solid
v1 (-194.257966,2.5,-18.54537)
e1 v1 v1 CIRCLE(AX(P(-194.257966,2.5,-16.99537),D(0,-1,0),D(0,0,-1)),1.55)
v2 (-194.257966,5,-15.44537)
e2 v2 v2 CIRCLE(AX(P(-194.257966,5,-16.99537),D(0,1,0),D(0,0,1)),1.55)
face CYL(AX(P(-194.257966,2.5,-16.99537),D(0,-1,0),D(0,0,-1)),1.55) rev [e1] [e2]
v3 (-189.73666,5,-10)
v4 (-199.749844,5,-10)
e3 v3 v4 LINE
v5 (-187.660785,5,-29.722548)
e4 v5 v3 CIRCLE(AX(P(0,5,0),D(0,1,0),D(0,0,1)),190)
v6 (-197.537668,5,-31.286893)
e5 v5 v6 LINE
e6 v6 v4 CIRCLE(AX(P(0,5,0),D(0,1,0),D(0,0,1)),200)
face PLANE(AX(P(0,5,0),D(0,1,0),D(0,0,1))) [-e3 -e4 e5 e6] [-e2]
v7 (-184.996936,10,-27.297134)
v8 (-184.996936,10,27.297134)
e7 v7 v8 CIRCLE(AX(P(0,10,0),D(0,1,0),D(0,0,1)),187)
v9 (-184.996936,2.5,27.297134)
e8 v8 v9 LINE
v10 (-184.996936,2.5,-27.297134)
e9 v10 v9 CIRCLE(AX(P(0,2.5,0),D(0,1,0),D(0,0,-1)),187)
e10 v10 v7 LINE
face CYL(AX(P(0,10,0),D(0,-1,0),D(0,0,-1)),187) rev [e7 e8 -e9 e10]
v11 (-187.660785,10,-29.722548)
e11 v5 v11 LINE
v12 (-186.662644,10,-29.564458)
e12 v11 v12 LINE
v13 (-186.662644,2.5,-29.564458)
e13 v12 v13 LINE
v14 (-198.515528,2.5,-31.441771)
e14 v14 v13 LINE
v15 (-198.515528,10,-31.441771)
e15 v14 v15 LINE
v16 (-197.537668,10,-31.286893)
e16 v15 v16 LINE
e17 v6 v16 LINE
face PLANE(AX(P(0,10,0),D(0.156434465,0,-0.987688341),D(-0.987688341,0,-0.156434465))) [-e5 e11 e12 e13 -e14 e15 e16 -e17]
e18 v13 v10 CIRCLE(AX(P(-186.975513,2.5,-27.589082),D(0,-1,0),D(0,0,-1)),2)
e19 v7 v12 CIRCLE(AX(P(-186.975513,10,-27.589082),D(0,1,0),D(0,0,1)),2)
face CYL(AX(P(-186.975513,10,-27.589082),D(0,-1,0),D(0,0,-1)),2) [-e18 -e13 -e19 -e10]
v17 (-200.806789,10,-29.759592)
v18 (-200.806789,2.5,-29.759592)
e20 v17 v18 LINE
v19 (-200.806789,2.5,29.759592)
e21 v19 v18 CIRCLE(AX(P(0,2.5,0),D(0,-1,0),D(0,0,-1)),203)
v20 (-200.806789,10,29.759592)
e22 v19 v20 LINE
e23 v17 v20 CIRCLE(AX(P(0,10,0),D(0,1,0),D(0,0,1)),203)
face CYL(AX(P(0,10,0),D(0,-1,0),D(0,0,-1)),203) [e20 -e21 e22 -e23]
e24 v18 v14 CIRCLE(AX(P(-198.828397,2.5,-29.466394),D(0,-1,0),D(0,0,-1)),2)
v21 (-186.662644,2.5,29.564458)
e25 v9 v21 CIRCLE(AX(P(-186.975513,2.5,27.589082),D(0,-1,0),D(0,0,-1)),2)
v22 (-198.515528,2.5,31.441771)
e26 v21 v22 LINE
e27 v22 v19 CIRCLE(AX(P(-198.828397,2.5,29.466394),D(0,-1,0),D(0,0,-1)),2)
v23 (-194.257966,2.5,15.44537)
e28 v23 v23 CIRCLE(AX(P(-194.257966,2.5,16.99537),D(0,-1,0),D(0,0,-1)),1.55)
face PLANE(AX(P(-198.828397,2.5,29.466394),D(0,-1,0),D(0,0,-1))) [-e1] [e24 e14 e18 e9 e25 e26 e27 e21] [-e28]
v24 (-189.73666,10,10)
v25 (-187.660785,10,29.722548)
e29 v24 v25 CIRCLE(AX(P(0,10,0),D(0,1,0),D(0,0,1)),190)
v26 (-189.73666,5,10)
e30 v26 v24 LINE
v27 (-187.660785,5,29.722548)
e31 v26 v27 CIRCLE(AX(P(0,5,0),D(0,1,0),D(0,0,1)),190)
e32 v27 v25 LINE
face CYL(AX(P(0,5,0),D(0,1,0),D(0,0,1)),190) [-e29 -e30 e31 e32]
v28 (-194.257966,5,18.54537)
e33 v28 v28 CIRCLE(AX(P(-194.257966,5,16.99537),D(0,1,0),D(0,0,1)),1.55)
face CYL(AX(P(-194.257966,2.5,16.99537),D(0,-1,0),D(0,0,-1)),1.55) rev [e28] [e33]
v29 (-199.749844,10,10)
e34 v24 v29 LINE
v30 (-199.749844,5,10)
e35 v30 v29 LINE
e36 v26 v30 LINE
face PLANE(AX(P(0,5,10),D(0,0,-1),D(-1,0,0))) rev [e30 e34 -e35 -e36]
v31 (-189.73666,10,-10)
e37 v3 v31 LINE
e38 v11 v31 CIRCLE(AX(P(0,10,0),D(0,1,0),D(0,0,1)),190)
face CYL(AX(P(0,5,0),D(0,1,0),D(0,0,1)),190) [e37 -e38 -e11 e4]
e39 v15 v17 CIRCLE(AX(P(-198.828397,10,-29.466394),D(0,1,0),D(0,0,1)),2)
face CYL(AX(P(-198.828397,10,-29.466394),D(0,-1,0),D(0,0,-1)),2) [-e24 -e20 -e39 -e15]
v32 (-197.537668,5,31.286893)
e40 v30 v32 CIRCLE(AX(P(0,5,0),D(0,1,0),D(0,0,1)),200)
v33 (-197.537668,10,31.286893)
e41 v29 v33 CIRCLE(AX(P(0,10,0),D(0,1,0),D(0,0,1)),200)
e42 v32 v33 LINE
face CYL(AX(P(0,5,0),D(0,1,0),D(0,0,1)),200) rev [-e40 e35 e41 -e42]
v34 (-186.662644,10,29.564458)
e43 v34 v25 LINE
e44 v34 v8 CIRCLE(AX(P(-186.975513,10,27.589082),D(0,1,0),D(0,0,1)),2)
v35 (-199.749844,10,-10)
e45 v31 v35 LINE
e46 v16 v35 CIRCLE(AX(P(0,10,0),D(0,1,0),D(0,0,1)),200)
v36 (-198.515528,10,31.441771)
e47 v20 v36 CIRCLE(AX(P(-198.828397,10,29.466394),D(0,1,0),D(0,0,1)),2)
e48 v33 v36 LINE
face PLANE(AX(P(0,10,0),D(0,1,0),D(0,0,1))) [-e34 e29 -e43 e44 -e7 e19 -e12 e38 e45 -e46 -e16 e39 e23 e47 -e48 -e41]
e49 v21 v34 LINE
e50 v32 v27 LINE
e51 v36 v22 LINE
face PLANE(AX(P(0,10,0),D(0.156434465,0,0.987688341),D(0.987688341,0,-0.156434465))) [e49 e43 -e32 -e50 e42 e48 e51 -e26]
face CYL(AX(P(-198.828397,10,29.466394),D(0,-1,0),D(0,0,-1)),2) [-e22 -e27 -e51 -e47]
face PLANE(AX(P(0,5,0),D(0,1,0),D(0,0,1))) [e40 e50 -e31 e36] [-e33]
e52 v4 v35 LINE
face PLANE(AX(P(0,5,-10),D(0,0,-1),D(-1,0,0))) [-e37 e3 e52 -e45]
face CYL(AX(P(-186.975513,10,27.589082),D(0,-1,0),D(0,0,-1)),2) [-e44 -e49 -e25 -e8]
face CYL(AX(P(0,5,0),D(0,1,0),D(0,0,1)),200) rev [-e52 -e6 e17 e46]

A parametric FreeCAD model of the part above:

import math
import FreeCAD as App
import Part
import Sketcher
Q = App.Units.Quantity


def edges_at(feature, points):
    """Names of the edges that pass closest to the given points."""
    edges = feature.Shape.Edges
    near = lambda p: min(range(len(edges)), key=lambda i: edges[i].distToShape(Part.Vertex(*p))[0])
    return sorted({f"Edge{near(p) + 1}" for p in points})

doc = App.newDocument("Part")
body = doc.addObject("PartDesign::Body", "Body")

# Sketch on XZ plane
sketch1 = doc.addObject("Sketcher::SketchObject", "Sketch")
body.addObject(sketch1)
sketch1.AttachmentSupport = (doc.XZ_Plane, [""])
sketch1.MapMode = "FlatFace"
sketch1.addGeometry([
    Part.LineSegment(App.Vector(-197.5, 31.3, 0), App.Vector(-187.7, 29.7, 0)),  # 0
    Part.LineSegment(App.Vector(-187.7, 29.7, 0), App.Vector(-184.7, 29.3, 0)),  # 1
    Part.ArcOfCircle(Part.Circle(App.Vector(0, 0, 0), App.Vector(0, 0, 1), 187), math.radians(171), math.radians(189)),  # 2
    Part.LineSegment(App.Vector(-184.7, -29.3, 0), App.Vector(-187.7, -29.7, 0)),  # 3
    Part.LineSegment(App.Vector(-187.7, -29.7, 0), App.Vector(-197.5, -31.3, 0)),  # 4
    Part.LineSegment(App.Vector(-197.5, -31.3, 0), App.Vector(-200.5, -31.8, 0)),  # 5
    Part.ArcOfCircle(Part.Circle(App.Vector(0, 0, 0), App.Vector(0, 0, 1), 203), math.radians(171), math.radians(189)),  # 6
    Part.LineSegment(App.Vector(-200.5, 31.8, 0), App.Vector(-197.5, 31.3, 0)),  # 7
], False)
sketch1.addConstraint([
    Sketcher.Constraint("Coincident", 0, 2, 1, 1),
    Sketcher.Constraint("Coincident", 1, 2, 2, 1),
    Sketcher.Constraint("Coincident", 2, 2, 3, 1),
    Sketcher.Constraint("Coincident", 3, 2, 4, 1),
    Sketcher.Constraint("Coincident", 4, 2, 5, 1),
    Sketcher.Constraint("Coincident", 5, 2, 6, 2),
    Sketcher.Constraint("Coincident", 6, 1, 7, 1),
    Sketcher.Constraint("Coincident", 7, 2, 0, 1),
    Sketcher.Constraint("Coincident", 2, 3, -1, 1),
    Sketcher.Constraint("Coincident", 6, 3, -1, 1),
    Sketcher.Constraint("Symmetric", 0, 2, 3, 2, -1),
    Sketcher.Constraint("Symmetric", 4, 2, 7, 2, -1),
    Sketcher.Constraint("Parallel", 0, 1),
    Sketcher.Constraint("Parallel", 3, 4),
    Sketcher.Constraint("Parallel", 4, 5),
    Sketcher.Constraint("Parallel", 1, 7),
    Sketcher.Constraint("Equal", 3, 5),
    Sketcher.Constraint("Radius", 2, 187.0),
    Sketcher.Constraint("Radius", 6, 203.0),
    Sketcher.Constraint("Angle", 0, Q("-9 deg")),
    Sketcher.Constraint("Distance", 0, 10.0),
    Sketcher.Constraint("DistanceY", -1, 1, 0, 2, 29.722548),
])
pad1 = doc.addObject("PartDesign::Pad", "Pad")
body.addObject(pad1)
pad1.Profile = sketch1
pad1.Length = 10
pad1.Reversed = True

# Sketch on XZ plane
sketch2 = doc.addObject("Sketcher::SketchObject", "Sketch001")
body.addObject(sketch2)
sketch2.AttachmentSupport = (doc.XZ_Plane, [""])
sketch2.MapMode = "FlatFace"
sketch2.AttachmentOffset = App.Placement(App.Vector(0, 0, -10), App.Rotation())
sketch2.addGeometry([
    Part.LineSegment(App.Vector(-200, -10, 0), App.Vector(-190, -10, 0)),  # 0
    Part.ArcOfCircle(Part.Circle(App.Vector(0, 0, 0), App.Vector(0, 0, 1), 190), math.radians(-176.98), math.radians(-171)),  # 1
    Part.LineSegment(App.Vector(-188, -30, 0), App.Vector(-198, -31, 0)),  # 2
    Part.ArcOfCircle(Part.Circle(App.Vector(0, 0, 0), App.Vector(0, 0, 1), 200), math.radians(-177.13), math.radians(-171)),  # 3
    Part.ArcOfCircle(Part.Circle(App.Vector(0, 0, 0), App.Vector(0, 0, 1), 190), math.radians(171), math.radians(176.98)),  # 4
    Part.LineSegment(App.Vector(-190, 10, 0), App.Vector(-200, 10, 0)),  # 5
    Part.ArcOfCircle(Part.Circle(App.Vector(0, 0, 0), App.Vector(0, 0, 1), 200), math.radians(171), math.radians(177.13)),  # 6
    Part.LineSegment(App.Vector(-198, 31, 0), App.Vector(-188, 30, 0)),  # 7
], False)
sketch2.addConstraint([
    Sketcher.Constraint("Coincident", 0, 2, 1, 1),
    Sketcher.Constraint("Coincident", 1, 2, 2, 1),
    Sketcher.Constraint("Coincident", 2, 2, 3, 2),
    Sketcher.Constraint("Coincident", 3, 1, 0, 1),
    Sketcher.Constraint("Coincident", 4, 2, 5, 1),
    Sketcher.Constraint("Coincident", 5, 2, 6, 2),
    Sketcher.Constraint("Coincident", 6, 1, 7, 1),
    Sketcher.Constraint("Coincident", 7, 2, 4, 1),
    Sketcher.Constraint("Horizontal", 0),
    Sketcher.Constraint("Horizontal", 5),
    Sketcher.Constraint("Coincident", 1, 3, -1, 1),
    Sketcher.Constraint("Coincident", 3, 3, -1, 1),
    Sketcher.Constraint("Coincident", 4, 3, -1, 1),
    Sketcher.Constraint("Coincident", 6, 3, -1, 1),
    Sketcher.Constraint("Equal", 1, 4),
    Sketcher.Constraint("Equal", 3, 6),
    Sketcher.Constraint("Vertical", 0, 2, 4, 2),
    Sketcher.Constraint("Vertical", 2, 2, 6, 1),
    Sketcher.Constraint("Vertical", 1, 2, 7, 2),
    Sketcher.Constraint("Radius", 1, 190.0),
    Sketcher.Constraint("Radius", 3, 200.0),
    Sketcher.Constraint("Angle", 2, Q("-171 deg")),
    Sketcher.Constraint("DistanceY", 0, 2, -1, 1, 10.0),
    Sketcher.Constraint("DistanceY", 1, 2, -1, 1, 29.722548),
])
pocket1 = doc.addObject("PartDesign::Pocket", "Pocket")
body.addObject(pocket1)
pocket1.Profile = sketch2
pocket1.Length = 5
pocket1.Reversed = True
doc.recompute()

fillet = doc.addObject("PartDesign::Fillet", "Fillet")
body.addObject(fillet)
fillet.Base = (pocket1, edges_at(pocket1, [
    (-200.501, 5, 31.756),
    (-200.501, 5, -31.756),
    (-184.698, 5, -29.253),
    (-184.698, 5, 29.253),
]))
fillet.Radius = 2

# Sketch on XZ plane
sketch3 = doc.addObject("Sketcher::SketchObject", "Sketch002")
body.addObject(sketch3)
sketch3.AttachmentSupport = (doc.XZ_Plane, [""])
sketch3.MapMode = "FlatFace"
sketch3.AttachmentOffset = App.Placement(App.Vector(0, 0, -2.5), App.Rotation())
sketch3.addGeometry([
    Part.LineSegment(App.Vector(-198.5, -31.4, 0), App.Vector(-186.7, -29.6, 0)),  # 0
    Part.ArcOfCircle(Part.Circle(App.Vector(-187, -27.6, 0), App.Vector(0, 0, 1), 2), math.radians(-81), math.radians(8)),  # 1
    Part.ArcOfCircle(Part.Circle(App.Vector(0, 0, 0), App.Vector(0, 0, 1), 187), math.radians(171.61), math.radians(188.39)),  # 2
    Part.ArcOfCircle(Part.Circle(App.Vector(-187, 27.6, 0), App.Vector(0, 0, 1), 2), math.radians(-8), math.radians(81)),  # 3
    Part.LineSegment(App.Vector(-186.7, 29.6, 0), App.Vector(-198.5, 31.4, 0)),  # 4
    Part.ArcOfCircle(Part.Circle(App.Vector(-198.8, 29.5, 0), App.Vector(0, 0, 1), 2), math.radians(81), math.radians(172)),  # 5
    Part.ArcOfCircle(Part.Circle(App.Vector(0, 0, 0), App.Vector(0, 0, 1), 203), math.radians(171.57), math.radians(188.43)),  # 6
    Part.ArcOfCircle(Part.Circle(App.Vector(-198.8, -29.5, 0), App.Vector(0, 0, 1), 2), math.radians(-172), math.radians(-81)),  # 7
], False)
sketch3.addConstraint([
    Sketcher.Constraint("Tangent", 0, 2, 1, 1),
    Sketcher.Constraint("Tangent", 1, 2, 2, 2),
    Sketcher.Constraint("Tangent", 2, 1, 3, 1),
    Sketcher.Constraint("Tangent", 3, 2, 4, 1),
    Sketcher.Constraint("Tangent", 4, 2, 5, 1),
    Sketcher.Constraint("Tangent", 5, 2, 6, 1),
    Sketcher.Constraint("Tangent", 6, 2, 7, 1),
    Sketcher.Constraint("Tangent", 7, 2, 0, 1),
    Sketcher.Constraint("Coincident", 2, 3, -1, 1),
    Sketcher.Constraint("Coincident", 6, 3, -1, 1),
    Sketcher.Constraint("Equal", 1, 3),
    Sketcher.Constraint("Equal", 3, 5),
    Sketcher.Constraint("Equal", 5, 7),
    Sketcher.Constraint("Symmetric", 0, 2, 3, 2, -1),
    Sketcher.Constraint("Radius", 1, 2.0),
    Sketcher.Constraint("Radius", 2, 187.0),
    Sketcher.Constraint("Radius", 6, 203.0),
    Sketcher.Constraint("Angle", 0, Q("9 deg")),
    Sketcher.Constraint("DistanceY", 1, 3, -1, 1, 27.589082),
])
pocket2 = doc.addObject("PartDesign::Pocket", "Pocket001")
body.addObject(pocket2)
pocket2.Profile = sketch3
pocket2.Length = 2.5
pocket2.Reversed = True

# Sketch on XZ plane
sketch4 = doc.addObject("Sketcher::SketchObject", "Sketch003")
body.addObject(sketch4)
sketch4.AttachmentSupport = (doc.XZ_Plane, [""])
sketch4.MapMode = "FlatFace"
sketch4.AttachmentOffset = App.Placement(App.Vector(0, 0, -2.5), App.Rotation())
sketch4.addGeometry([
    Part.Circle(App.Vector(-194.3, -17, 0), App.Vector(0, 0, 1), 1.6),
    Part.Circle(App.Vector(-194.3, 17, 0), App.Vector(0, 0, 1), 1.6),
], False)
sketch4.addConstraint([
    Sketcher.Constraint("Equal", 0, 1),
    Sketcher.Constraint("Symmetric", 0, 3, 1, 3, -1),
    Sketcher.Constraint("Diameter", 0, 3.1),
    Sketcher.Constraint("DistanceY", 0, 3, -1, 1, 16.99537),
    Sketcher.Constraint("DistanceX", 0, 3, -1, 1, 194.257966),
])
doc.recompute()
hole = doc.addObject("PartDesign::Hole", "Hole")
body.addObject(hole)
hole.Profile = sketch4
hole.ThreadType = "None"
hole.Diameter = 3.1
hole.DepthType = "ThroughAll"

doc.recompute()
